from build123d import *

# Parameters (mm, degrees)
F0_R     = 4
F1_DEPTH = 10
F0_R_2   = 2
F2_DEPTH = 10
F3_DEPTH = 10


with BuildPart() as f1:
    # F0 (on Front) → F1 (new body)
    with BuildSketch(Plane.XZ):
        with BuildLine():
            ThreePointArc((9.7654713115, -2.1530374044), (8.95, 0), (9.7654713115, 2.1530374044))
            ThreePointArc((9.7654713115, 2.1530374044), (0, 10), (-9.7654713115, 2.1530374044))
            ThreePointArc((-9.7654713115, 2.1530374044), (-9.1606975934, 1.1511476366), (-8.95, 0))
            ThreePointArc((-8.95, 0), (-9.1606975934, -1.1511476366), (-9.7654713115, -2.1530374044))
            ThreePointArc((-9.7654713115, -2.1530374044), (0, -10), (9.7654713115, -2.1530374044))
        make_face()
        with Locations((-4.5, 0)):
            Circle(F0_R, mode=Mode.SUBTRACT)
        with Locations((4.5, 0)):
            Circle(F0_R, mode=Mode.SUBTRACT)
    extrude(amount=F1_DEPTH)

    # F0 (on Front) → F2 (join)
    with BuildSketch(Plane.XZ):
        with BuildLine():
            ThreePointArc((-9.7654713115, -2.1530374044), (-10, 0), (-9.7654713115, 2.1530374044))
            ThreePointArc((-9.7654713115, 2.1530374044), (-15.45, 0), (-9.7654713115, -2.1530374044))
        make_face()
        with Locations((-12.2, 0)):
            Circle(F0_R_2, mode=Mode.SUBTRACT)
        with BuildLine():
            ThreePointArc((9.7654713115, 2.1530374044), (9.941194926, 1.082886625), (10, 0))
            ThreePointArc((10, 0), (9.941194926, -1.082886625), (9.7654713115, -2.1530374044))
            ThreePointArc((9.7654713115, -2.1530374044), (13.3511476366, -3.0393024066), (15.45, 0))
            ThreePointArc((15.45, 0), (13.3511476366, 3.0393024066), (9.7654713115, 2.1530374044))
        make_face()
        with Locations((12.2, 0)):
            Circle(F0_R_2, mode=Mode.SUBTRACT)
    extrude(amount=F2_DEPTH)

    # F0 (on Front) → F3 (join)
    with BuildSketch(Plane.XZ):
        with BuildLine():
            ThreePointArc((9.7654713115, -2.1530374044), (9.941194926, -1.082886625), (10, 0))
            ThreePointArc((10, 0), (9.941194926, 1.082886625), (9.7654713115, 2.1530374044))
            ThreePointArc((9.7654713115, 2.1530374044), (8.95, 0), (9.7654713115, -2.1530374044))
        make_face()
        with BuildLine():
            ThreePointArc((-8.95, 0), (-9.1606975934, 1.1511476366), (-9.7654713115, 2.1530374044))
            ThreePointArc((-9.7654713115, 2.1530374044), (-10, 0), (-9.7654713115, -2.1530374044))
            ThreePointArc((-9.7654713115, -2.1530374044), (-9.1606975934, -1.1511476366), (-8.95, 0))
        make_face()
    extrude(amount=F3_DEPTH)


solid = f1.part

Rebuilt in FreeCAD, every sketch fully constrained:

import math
import FreeCAD as App
import Part
import Sketcher

V = App.Vector
Q = App.Units.Quantity

doc = App.newDocument("Part")
params = doc.addObject("Spreadsheet::Sheet", "Params")
for row, (alias, value) in enumerate([
    ("sketch1_diameter", "8 mm"),
    ("sketch1_radius", "10 mm"),
    ("sketch1_radius2", "3.25 mm"),
    ("pad1_length", "10 mm"),
    ("sketch2_diameter", "4 mm"),
    ("sketch2_radius", "10 mm"),
    ("sketch2_radius2", "3.25 mm"),
    ("pad2_length", "10 mm"),
    ("sketch3_radius", "10 mm"),
    ("sketch3_radius2", "3.25 mm"),
    ("pad3_length", "10 mm"),
], start=1):
    params.set(f"A{row}", alias)
    params.set(f"B{row}", "=" + value)
    params.setAlias(f"B{row}", alias)

body = doc.addObject("PartDesign::Body", "Body")
body.AllowCompound = True

sketch1 = doc.addObject("Sketcher::SketchObject", "Sketch")
body.addObject(sketch1)
sketch1.AttachmentSupport = (doc.XZ_Plane, [""])
sketch1.MapMode = "FlatFace"
sketch1.addGeometry([
    Part.ArcOfCircle(Part.Circle(V(12.2, 0, 0), V(0, 0, 1), 3.2), math.radians(139), math.radians(221)),
    Part.ArcOfCircle(Part.Circle(V(0, 0, 0), V(0, 0, 1), 10), math.radians(12), math.radians(168)),
    Part.ArcOfCircle(Part.Circle(V(-12.2, 0, 0), V(0, 0, 1), 3.2), math.radians(0), math.radians(41)),
    Part.ArcOfCircle(Part.Circle(V(-12.2, 0, 0), V(0, 0, 1), 3.2), math.radians(-41), math.radians(0)),
    Part.ArcOfCircle(Part.Circle(V(0, 0, 0), V(0, 0, 1), 10), math.radians(-168), math.radians(-12)),
    Part.Circle(V(-4.5, 0, 0), V(0, 0, 1), 4),
    Part.Circle(V(4.5, 0, 0), V(0, 0, 1), 4),
], False)
sketch1.addConstraint([
    Sketcher.Constraint("Coincident", 0, 1, 1, 1),
    Sketcher.Constraint("Coincident", 1, 2, 2, 2),
    Sketcher.Constraint("Tangent", 2, 1, 3, 2),
    Sketcher.Constraint("Coincident", 3, 1, 4, 1),
    Sketcher.Constraint("Coincident", 4, 2, 0, 2),
    Sketcher.Constraint("Coincident", 1, 3, -1, 1),
    Sketcher.Constraint("Coincident", 4, 3, -1, 1),
    Sketcher.Constraint("Equal", 0, 2),
    Sketcher.Constraint("Equal", 2, 3),
    Sketcher.Constraint("Equal", 1, 4),
    Sketcher.Constraint("Equal", 5, 6),
    Sketcher.Constraint("Symmetric", 0, 3, 2, 3, -1, 1),
    Sketcher.Constraint("Symmetric", 5, 3, 6, 3, -1, 1),
    Sketcher.Constraint("PointOnObject", 0, 3, -1),
    Sketcher.Constraint("PointOnObject", 5, 3, -1),
    Sketcher.Constraint("PointOnObject", 2, 1, -1),
    Sketcher.Constraint("Diameter", 5, Q("8 mm")),
    Sketcher.Constraint("Radius", 1, Q("10 mm")),
    Sketcher.Constraint("Radius", 0, Q("3.25 mm")),
    Sketcher.Constraint("DistanceX", 5, 3, 6, 3, Q("9 mm")),
    Sketcher.Constraint("DistanceX", -1, 1, 0, 3, Q("12.2 mm")),
])
sketch1.setExpression("Constraints[16]", "Params.sketch1_diameter")
sketch1.setExpression("Constraints[17]", "Params.sketch1_radius")
sketch1.setExpression("Constraints[18]", "Params.sketch1_radius2")
pad1 = doc.addObject("PartDesign::Pad", "Pad")
body.addObject(pad1)
pad1.Profile = sketch1
pad1.setExpression("Length", "Params.pad1_length")

sketch2 = doc.addObject("Sketcher::SketchObject", "Sketch001")
body.addObject(sketch2)
sketch2.AttachmentSupport = (doc.XZ_Plane, [""])
sketch2.MapMode = "FlatFace"
sketch2.addGeometry([
    Part.ArcOfCircle(Part.Circle(V(0, 0, 0), V(0, 0, 1), 10), math.radians(168), math.radians(192)),
    Part.ArcOfCircle(Part.Circle(V(-12.2, 0, 0), V(0, 0, 1), 3.2), math.radians(41), math.radians(319)),
    Part.Circle(V(-12.2, 0, 0), V(0, 0, 1), 2),
    Part.ArcOfCircle(Part.Circle(V(0, 0, 0), V(0, 0, 1), 10), math.radians(0), math.radians(12.43)),
    Part.ArcOfCircle(Part.Circle(V(0, 0, 0), V(0, 0, 1), 10), math.radians(-12.43), math.radians(0)),
    Part.ArcOfCircle(Part.Circle(V(12.2, 0, 0), V(0, 0, 1), 3.2), math.radians(-139), math.radians(0)),
    Part.ArcOfCircle(Part.Circle(V(12.2, 0, 0), V(0, 0, 1), 3.2), math.radians(0), math.radians(139)),
    Part.Circle(V(12.2, 0, 0), V(0, 0, 1), 2),
], False)
sketch2.addConstraint([
    Sketcher.Constraint("Coincident", 0, 1, 1, 1),
    Sketcher.Constraint("Coincident", 1, 2, 0, 2),
    Sketcher.Constraint("Tangent", 3, 1, 4, 2),
    Sketcher.Constraint("Coincident", 4, 1, 5, 1),
    Sketcher.Constraint("Tangent", 5, 2, 6, 1),
    Sketcher.Constraint("Coincident", 6, 2, 3, 2),
    Sketcher.Constraint("Coincident", 0, 3, -1, 1),
    Sketcher.Constraint("Coincident", 3, 3, -1, 1),
    Sketcher.Constraint("Coincident", 2, 3, 1, 3),
    Sketcher.Constraint("Coincident", 7, 3, 5, 3),
    Sketcher.Constraint("Equal", 0, 3),
    Sketcher.Constraint("Equal", 3, 4),
    Sketcher.Constraint("Equal", 1, 5),
    Sketcher.Constraint("Equal", 5, 6),
    Sketcher.Constraint("Equal", 2, 7),
    Sketcher.Constraint("Symmetric", 1, 3, 5, 3, -1, 1),
    Sketcher.Constraint("PointOnObject", 1, 3, -1),
    Sketcher.Constraint("PointOnObject", 3, 1, -1),
    Sketcher.Constraint("PointOnObject", 5, 2, -1),
    Sketcher.Constraint("Diameter", 2, Q("4 mm")),
    Sketcher.Constraint("Radius", 0, Q("10 mm")),
    Sketcher.Constraint("Radius", 1, Q("3.25 mm")),
    Sketcher.Constraint("DistanceX", 1, 3, -1, 1, Q("12.2 mm")),
])
sketch2.setExpression("Constraints[19]", "Params.sketch2_diameter")
sketch2.setExpression("Constraints[20]", "Params.sketch2_radius")
sketch2.setExpression("Constraints[21]", "Params.sketch2_radius2")
pad2 = doc.addObject("PartDesign::Pad", "Pad001")
body.addObject(pad2)
pad2.Profile = sketch2
pad2.setExpression("Length", "Params.pad2_length")

sketch3 = doc.addObject("Sketcher::SketchObject", "Sketch002")
body.addObject(sketch3)
sketch3.AttachmentSupport = (doc.XZ_Plane, [""])
sketch3.MapMode = "FlatFace"
sketch3.addGeometry([
    Part.ArcOfCircle(Part.Circle(V(0, 0, 0), V(0, 0, 1), 10), math.radians(-12.43), math.radians(0)),
    Part.ArcOfCircle(Part.Circle(V(0, 0, 0), V(0, 0, 1), 10), math.radians(0), math.radians(12.43)),
    Part.ArcOfCircle(Part.Circle(V(12.2, 0, 0), V(0, 0, 1), 3.2), math.radians(139), math.radians(221)),
    Part.ArcOfCircle(Part.Circle(V(-12.2, 0, 0), V(0, 0, 1), 3.2), math.radians(0), math.radians(41)),
    Part.ArcOfCircle(Part.Circle(V(0, 0, 0), V(0, 0, 1), 10), math.radians(168), math.radians(192)),
    Part.ArcOfCircle(Part.Circle(V(-12.2, 0, 0), V(0, 0, 1), 3.2), math.radians(-41), math.radians(0)),
], False)
sketch3.addConstraint([
    Sketcher.Constraint("Tangent", 0, 2, 1, 1),
    Sketcher.Constraint("Coincident", 1, 2, 2, 1),
    Sketcher.Constraint("Coincident", 2, 2, 0, 1),
    Sketcher.Constraint("Coincident", 3, 2, 4, 1),
    Sketcher.Constraint("Coincident", 4, 2, 5, 1),
    Sketcher.Constraint("Tangent", 5, 2, 3, 1),
    Sketcher.Constraint("Coincident", 0, 3, -1, 1),
    Sketcher.Constraint("Coincident", 4, 3, -1, 1),
    Sketcher.Constraint("Equal", 0, 1),
    Sketcher.Constraint("Equal", 2, 3),
    Sketcher.Constraint("Equal", 1, 4),
    Sketcher.Constraint("Equal", 3, 5),
    Sketcher.Constraint("Symmetric", 2, 3, 3, 3, -1, 1),
    Sketcher.Constraint("PointOnObject", 2, 3, -1),
    Sketcher.Constraint("PointOnObject", 0, 2, -1),
    Sketcher.Constraint("PointOnObject", 5, 2, -1),
    Sketcher.Constraint("Radius", 0, Q("10 mm")),
    Sketcher.Constraint("Radius", 2, Q("3.25 mm")),
    Sketcher.Constraint("DistanceX", -1, 1, 2, 3, Q("12.2 mm")),
])
sketch3.setExpression("Constraints[16]", "Params.sketch3_radius")
sketch3.setExpression("Constraints[17]", "Params.sketch3_radius2")
pad3 = doc.addObject("PartDesign::Pad", "Pad002")
body.addObject(pad3)
pad3.Profile = sketch3
pad3.setExpression("Length", "Params.pad3_length")

doc.recompute()
